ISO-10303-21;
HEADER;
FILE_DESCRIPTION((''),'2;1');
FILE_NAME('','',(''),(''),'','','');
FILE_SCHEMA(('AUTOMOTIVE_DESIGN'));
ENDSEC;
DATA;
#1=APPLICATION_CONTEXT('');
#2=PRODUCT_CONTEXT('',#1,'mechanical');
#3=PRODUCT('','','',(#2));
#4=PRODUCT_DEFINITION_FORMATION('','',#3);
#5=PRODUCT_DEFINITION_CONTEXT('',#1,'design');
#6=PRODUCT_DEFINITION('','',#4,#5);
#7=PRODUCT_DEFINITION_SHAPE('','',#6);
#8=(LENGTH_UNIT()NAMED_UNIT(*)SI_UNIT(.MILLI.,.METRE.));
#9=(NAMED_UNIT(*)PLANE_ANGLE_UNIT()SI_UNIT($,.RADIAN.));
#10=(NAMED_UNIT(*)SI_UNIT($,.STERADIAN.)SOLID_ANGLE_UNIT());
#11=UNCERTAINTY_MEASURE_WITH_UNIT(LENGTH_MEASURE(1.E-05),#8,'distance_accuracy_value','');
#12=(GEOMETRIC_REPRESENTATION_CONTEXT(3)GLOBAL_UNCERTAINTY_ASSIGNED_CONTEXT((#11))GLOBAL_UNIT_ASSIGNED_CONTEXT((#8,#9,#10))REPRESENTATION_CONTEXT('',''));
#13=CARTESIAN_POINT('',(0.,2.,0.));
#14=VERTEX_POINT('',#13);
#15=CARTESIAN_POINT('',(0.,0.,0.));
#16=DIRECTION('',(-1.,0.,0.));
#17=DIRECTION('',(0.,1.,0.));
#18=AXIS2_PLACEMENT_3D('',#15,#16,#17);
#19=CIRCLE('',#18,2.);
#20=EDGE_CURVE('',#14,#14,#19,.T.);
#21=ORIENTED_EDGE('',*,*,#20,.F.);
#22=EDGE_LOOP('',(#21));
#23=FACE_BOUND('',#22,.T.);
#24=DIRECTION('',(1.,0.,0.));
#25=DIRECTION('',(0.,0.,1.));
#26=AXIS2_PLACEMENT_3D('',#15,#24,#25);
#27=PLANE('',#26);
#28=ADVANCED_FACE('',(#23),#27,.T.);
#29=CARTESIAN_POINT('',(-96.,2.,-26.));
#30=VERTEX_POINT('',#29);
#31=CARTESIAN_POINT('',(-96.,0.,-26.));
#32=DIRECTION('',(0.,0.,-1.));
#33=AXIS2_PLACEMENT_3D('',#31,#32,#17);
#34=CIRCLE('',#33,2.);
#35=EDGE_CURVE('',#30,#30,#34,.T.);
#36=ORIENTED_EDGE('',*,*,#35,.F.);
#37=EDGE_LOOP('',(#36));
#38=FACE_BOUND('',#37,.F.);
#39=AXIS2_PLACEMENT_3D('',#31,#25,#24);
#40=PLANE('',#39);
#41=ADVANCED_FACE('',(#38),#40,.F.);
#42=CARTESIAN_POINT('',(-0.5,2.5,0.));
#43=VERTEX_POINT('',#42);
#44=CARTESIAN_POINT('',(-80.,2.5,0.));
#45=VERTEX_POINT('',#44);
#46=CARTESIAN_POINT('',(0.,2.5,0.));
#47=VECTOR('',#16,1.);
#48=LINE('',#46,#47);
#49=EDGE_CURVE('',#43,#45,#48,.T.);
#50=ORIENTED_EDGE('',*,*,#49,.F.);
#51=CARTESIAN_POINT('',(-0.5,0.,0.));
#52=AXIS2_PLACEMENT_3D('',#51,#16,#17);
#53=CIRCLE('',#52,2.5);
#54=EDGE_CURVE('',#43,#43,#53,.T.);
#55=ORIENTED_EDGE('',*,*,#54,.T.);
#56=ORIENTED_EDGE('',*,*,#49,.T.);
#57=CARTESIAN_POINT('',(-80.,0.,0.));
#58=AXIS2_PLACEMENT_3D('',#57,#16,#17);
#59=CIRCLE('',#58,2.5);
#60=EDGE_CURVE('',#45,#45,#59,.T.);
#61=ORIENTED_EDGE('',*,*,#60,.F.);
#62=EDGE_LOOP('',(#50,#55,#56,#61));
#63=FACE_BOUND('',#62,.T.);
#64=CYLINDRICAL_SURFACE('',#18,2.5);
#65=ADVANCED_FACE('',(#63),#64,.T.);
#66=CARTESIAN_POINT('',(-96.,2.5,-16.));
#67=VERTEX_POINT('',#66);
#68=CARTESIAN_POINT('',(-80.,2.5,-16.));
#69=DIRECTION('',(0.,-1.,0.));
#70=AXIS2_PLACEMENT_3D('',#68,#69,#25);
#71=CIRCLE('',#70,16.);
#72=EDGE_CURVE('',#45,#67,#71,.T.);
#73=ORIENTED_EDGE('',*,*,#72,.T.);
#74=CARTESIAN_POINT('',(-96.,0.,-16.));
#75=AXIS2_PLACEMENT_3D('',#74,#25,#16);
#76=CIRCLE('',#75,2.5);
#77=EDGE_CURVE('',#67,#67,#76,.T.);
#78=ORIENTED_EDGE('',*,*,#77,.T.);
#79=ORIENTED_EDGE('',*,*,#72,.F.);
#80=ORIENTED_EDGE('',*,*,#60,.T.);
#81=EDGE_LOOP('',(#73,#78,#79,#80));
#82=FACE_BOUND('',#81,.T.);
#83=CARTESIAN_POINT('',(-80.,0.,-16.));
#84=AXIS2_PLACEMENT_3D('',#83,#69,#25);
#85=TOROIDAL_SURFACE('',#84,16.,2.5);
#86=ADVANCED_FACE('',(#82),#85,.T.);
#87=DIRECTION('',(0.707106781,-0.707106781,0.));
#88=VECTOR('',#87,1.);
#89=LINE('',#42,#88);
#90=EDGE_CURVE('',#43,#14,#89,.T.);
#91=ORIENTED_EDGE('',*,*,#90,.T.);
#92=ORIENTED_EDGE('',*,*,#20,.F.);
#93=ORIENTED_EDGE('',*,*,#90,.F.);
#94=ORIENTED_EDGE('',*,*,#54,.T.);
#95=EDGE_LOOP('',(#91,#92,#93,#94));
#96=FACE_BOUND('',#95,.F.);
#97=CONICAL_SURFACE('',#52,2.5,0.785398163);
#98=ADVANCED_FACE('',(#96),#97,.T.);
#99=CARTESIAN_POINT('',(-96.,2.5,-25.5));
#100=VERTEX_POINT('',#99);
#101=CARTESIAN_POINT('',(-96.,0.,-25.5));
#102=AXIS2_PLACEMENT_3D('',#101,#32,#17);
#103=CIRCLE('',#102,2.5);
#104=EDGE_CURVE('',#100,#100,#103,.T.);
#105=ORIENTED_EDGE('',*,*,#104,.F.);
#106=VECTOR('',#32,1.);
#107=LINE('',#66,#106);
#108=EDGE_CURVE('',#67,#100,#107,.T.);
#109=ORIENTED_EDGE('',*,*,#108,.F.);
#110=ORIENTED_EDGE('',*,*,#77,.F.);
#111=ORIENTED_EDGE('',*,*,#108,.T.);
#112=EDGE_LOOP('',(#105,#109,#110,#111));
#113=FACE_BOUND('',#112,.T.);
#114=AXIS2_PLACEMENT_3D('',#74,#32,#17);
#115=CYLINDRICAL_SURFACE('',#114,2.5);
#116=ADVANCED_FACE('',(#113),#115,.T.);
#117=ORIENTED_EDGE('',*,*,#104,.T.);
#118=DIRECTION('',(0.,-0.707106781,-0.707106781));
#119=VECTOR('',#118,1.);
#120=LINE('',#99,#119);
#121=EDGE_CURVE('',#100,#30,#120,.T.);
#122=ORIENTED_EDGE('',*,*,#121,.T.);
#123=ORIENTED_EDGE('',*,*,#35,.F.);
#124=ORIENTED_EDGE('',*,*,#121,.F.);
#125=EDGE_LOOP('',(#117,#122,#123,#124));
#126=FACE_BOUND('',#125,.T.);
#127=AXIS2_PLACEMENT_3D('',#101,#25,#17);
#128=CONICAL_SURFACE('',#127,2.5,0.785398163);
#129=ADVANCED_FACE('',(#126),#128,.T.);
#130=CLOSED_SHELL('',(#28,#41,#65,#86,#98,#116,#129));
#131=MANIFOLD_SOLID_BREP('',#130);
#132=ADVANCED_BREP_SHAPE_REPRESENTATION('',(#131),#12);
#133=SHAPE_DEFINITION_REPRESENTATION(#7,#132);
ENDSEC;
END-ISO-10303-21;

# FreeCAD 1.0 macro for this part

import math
import FreeCAD as App
import Part
import Sketcher
from FreeCAD import Vector


def edges_at(feature, points):
    """Names of the edges that pass closest to the given points."""
    edges = feature.Shape.Edges
    near = lambda p: min(range(len(edges)), key=lambda i: edges[i].distToShape(Part.Vertex(*p))[0])
    return sorted({f"Edge{near(p) + 1}" for p in points})

doc = App.newDocument("Part")
params = doc.addObject("Spreadsheet::Sheet", "Params")
for row, (alias, value) in enumerate([
    ("sketch1_diameter", "5 mm"),
    ("sketch2_radius", "16 mm"),
    ("sketch2_width", "80 mm"),
    ("sketch2_height", "10 mm"),
    ("chamfer_size", "0.5 mm"),
], start=1):
    params.set(f"A{row}", alias)
    params.set(f"B{row}", "=" + value)
    params.setAlias(f"B{row}", alias)

body = doc.addObject("PartDesign::Body", "Body")

sketch1 = body.newObject("Sketcher::SketchObject", "Sketch")
sketch1.AttachmentSupport = (doc.getObject("YZ_Plane"), [""])
sketch1.MapMode = "FlatFace"
sketch1.addGeometry(Part.Circle(Vector(0, 0, 0), Vector(0, 0, 1), 2.5), False)
sketch1.addConstraint(Sketcher.Constraint("Coincident", 0, 3, -1, 1))
sketch1.addConstraint(Sketcher.Constraint("Diameter", 0, 5.0))
sketch1.setExpression("Constraints[1]", "Params.sketch1_diameter")

sketch2 = body.newObject("Sketcher::SketchObject", "Sketch001")
sketch2.AttachmentSupport = (doc.getObject("XZ_Plane"), [""])
sketch2.MapMode = "FlatFace"
sketch2.addGeometry(Part.LineSegment(Vector(0, 0, 0), Vector(-80, 0, 0)), False)
sketch2.addGeometry(Part.ArcOfCircle(Part.Circle(Vector(-80, -16, 0), Vector(0, 0, 1), 16), math.radians(90), math.radians(180)), False)
sketch2.addGeometry(Part.LineSegment(Vector(-96, -16, 0), Vector(-96, -26, 0)), False)
sketch2.addConstraint(Sketcher.Constraint("Tangent", 0, 2, 1, 1))
sketch2.addConstraint(Sketcher.Constraint("Tangent", 1, 2, 2, 1))
sketch2.addConstraint(Sketcher.Constraint("Horizontal", 0))
sketch2.addConstraint(Sketcher.Constraint("Vertical", 2))
sketch2.addConstraint(Sketcher.Constraint("Coincident", 0, 1, -1, 1))
sketch2.addConstraint(Sketcher.Constraint("Radius", 1, 16.0))
sketch2.addConstraint(Sketcher.Constraint("DistanceX", 0, 2, 0, 1, 80.0))
sketch2.addConstraint(Sketcher.Constraint("DistanceY", 2, 2, 2, 1, 10.0))
sketch2.setExpression("Constraints[5]", "Params.sketch2_radius")
sketch2.setExpression("Constraints[6]", "Params.sketch2_width")
sketch2.setExpression("Constraints[7]", "Params.sketch2_height")
doc.recompute()

additivepipe = body.newObject("PartDesign::AdditivePipe", "AdditivePipe")
additivepipe.Profile = sketch1
additivepipe.Spine = (sketch2, ["Edge1", "Edge2", "Edge3"])
doc.recompute()

chamfer = body.newObject("PartDesign::Chamfer", "Chamfer")
chamfer.Base = (additivepipe, edges_at(additivepipe, [(-96, -2.5, -26), (0, -2.5, 0)]))
chamfer.setExpression("Size", "Params.chamfer_size")

doc.recompute()
